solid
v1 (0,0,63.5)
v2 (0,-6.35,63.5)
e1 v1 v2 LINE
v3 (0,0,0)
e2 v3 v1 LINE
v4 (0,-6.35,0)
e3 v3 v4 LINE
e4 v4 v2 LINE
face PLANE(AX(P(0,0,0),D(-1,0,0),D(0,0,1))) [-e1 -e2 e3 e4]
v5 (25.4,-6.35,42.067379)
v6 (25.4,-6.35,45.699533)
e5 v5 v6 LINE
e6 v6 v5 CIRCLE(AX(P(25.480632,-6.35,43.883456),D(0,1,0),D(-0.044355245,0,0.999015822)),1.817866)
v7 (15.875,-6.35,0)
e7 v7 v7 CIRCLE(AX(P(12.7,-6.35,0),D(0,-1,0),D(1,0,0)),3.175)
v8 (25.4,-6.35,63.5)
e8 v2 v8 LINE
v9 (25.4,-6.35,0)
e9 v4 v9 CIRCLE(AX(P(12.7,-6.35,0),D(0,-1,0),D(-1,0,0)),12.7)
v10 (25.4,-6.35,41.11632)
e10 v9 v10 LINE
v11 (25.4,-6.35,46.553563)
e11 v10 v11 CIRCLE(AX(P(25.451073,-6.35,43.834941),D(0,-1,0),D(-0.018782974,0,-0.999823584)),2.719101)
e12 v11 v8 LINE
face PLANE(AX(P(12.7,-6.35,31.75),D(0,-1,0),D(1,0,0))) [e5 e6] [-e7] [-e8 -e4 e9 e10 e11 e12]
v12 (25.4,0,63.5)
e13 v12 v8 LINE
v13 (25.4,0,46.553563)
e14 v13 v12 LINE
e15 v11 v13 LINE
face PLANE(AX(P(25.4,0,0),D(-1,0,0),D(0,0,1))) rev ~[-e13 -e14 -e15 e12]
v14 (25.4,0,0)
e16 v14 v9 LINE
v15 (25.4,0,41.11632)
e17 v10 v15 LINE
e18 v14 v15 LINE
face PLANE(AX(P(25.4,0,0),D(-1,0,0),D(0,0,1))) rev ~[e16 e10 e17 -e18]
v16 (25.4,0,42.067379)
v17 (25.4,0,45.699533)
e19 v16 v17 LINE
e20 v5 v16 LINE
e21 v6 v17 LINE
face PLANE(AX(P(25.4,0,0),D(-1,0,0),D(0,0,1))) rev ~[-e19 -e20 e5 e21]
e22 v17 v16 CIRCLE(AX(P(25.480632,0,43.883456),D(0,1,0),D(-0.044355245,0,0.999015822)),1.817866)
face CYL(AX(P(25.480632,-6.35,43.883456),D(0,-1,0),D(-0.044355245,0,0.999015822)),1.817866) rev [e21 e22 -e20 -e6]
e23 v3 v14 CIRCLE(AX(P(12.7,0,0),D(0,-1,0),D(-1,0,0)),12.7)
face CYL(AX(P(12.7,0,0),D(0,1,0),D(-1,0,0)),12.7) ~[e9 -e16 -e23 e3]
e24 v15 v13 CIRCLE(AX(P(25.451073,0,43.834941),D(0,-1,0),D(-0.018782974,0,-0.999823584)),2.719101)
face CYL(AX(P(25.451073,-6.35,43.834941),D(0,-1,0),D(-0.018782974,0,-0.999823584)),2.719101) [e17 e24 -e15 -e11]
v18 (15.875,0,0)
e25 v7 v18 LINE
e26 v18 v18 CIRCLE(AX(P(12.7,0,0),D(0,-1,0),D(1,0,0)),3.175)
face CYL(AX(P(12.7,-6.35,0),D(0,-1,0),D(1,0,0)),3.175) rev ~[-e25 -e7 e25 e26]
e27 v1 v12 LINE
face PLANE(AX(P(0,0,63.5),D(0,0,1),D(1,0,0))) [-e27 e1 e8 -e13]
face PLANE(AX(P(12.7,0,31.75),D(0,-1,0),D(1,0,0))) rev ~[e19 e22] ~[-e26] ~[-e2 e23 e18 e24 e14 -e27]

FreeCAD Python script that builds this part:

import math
import FreeCAD as App
import Part
import Sketcher
from FreeCAD import Vector
Q = App.Units.Quantity

doc = App.newDocument("Part")
body = doc.addObject("PartDesign::Body", "Body")

sketch1 = body.newObject("Sketcher::SketchObject", "Sketch")
sketch1.AttachmentSupport = (doc.getObject("XZ_Plane"), [""])
sketch1.MapMode = "FlatFace"
sketch1.addGeometry(Part.LineSegment(Vector(0, 64, 0), Vector(0, 0, 0)), False)
sketch1.addGeometry(Part.ArcOfCircle(Part.Circle(Vector(13, 0, 0), Vector(0, 0, 1), 13), math.radians(180), math.radians(360)), False)
sketch1.addGeometry(Part.LineSegment(Vector(25, 0, 0), Vector(25, 64, 0)), False)
sketch1.addGeometry(Part.LineSegment(Vector(25, 64, 0), Vector(0, 64, 0)), False)
sketch1.addConstraint(Sketcher.Constraint("Tangent", 0, 2, 1, 1))
sketch1.addConstraint(Sketcher.Constraint("Tangent", 1, 2, 2, 1))
sketch1.addConstraint(Sketcher.Constraint("Coincident", 2, 2, 3, 1))
sketch1.addConstraint(Sketcher.Constraint("Coincident", 3, 2, 0, 1))
sketch1.addConstraint(Sketcher.Constraint("Vertical", 0))
sketch1.addConstraint(Sketcher.Constraint("Vertical", 2))
sketch1.addConstraint(Sketcher.Constraint("Horizontal", 3))
sketch1.addConstraint(Sketcher.Constraint("Coincident", 0, 2, -1, 1))
sketch1.addConstraint(Sketcher.Constraint("Radius", 1, Q("0.5 in")))
sketch1.addConstraint(Sketcher.Constraint("DistanceY", 0, 2, 0, 1, Q("2.5 in")))
pad1 = body.newObject("PartDesign::Pad", "Pad")
pad1.Profile = sketch1
pad1.Length = Q("0.25 in")

sketch2 = body.newObject("Sketcher::SketchObject", "Sketch001")
sketch2.AttachmentSupport = (doc.getObject("XZ_Plane"), [""])
sketch2.MapMode = "FlatFace"
sketch2.AttachmentOffset = App.Placement(Vector(0, 0, 0.25 * 25.4), App.Rotation())
sketch2.addGeometry(Part.Circle(Vector(12.7, 0, 0), Vector(0, 0, 1), 3.2), False)
sketch2.addConstraint(Sketcher.Constraint("PointOnObject", 0, 3, -1))
sketch2.addConstraint(Sketcher.Constraint("Diameter", 0, Q("0.25 in")))
sketch2.addConstraint(Sketcher.Constraint("DistanceX", -1, 1, 0, 3, Q("0.5 in")))
pocket1 = body.newObject("PartDesign::Pocket", "Pocket")
pocket1.Profile = sketch2
pocket1.Type = "ThroughAll"

sketch3 = body.newObject("Sketcher::SketchObject", "Sketch002")
sketch3.AttachmentSupport = (doc.getObject("XZ_Plane"), [""])
sketch3.MapMode = "FlatFace"
sketch3.AttachmentOffset = App.Placement(Vector(0, 0, 0.25 * 25.4), App.Rotation())
sketch3.addGeometry(Part.LineSegment(Vector(25.4, 42.1, 0), Vector(25.4, 41.1, 0)), False)
sketch3.addGeometry(Part.ArcOfCircle(Part.Circle(Vector(25.5, 43.8, 0), Vector(0, 0, 1), 2.7), math.radians(-91), math.radians(91)), False)
sketch3.addGeometry(Part.LineSegment(Vector(25.4, 46.6, 0), Vector(25.4, 45.7, 0)), False)
sketch3.addGeometry(Part.ArcOfCircle(Part.Circle(Vector(25.5, 43.9, 0), Vector(0, 0, 1), 1.8), math.radians(-93), math.radians(93)), False)
sketch3.addConstraint(Sketcher.Constraint("Coincident", 0, 2, 1, 1))
sketch3.addConstraint(Sketcher.Constraint("Coincident", 1, 2, 2, 1))
sketch3.addConstraint(Sketcher.Constraint("Coincident", 2, 2, 3, 2))
sketch3.addConstraint(Sketcher.Constraint("Coincident", 3, 1, 0, 1))
sketch3.addConstraint(Sketcher.Constraint("Vertical", 0))
sketch3.addConstraint(Sketcher.Constraint("Vertical", 2))
sketch3.addConstraint(Sketcher.Constraint("Vertical", 0, 2, 1, 2))
sketch3.addConstraint(Sketcher.Constraint("DistanceX", -1, 1, 0, 2, Q("1 in")))
sketch3.addConstraint(Sketcher.Constraint("Radius", 1, 2.719101))
sketch3.addConstraint(Sketcher.Constraint("Radius", 3, 1.817866))
sketch3.addConstraint(Sketcher.Constraint("DistanceY", 0, 2, 0, 1, 0.951059))
sketch3.addConstraint(Sketcher.Constraint("DistanceY", 2, 2, 2, 1, 0.85403))
sketch3.addConstraint(Sketcher.Constraint("DistanceY", -1, 1, 1, 3, 43.834941))
sketch3.addConstraint(Sketcher.Constraint("DistanceX", -1, 1, 3, 3, 25.480632))
pad2 = body.newObject("PartDesign::Pad", "Pad001")
pad2.Profile = sketch3
pad2.Length = Q("0.25 in")
pad2.Reversed = True

doc.recompute()
